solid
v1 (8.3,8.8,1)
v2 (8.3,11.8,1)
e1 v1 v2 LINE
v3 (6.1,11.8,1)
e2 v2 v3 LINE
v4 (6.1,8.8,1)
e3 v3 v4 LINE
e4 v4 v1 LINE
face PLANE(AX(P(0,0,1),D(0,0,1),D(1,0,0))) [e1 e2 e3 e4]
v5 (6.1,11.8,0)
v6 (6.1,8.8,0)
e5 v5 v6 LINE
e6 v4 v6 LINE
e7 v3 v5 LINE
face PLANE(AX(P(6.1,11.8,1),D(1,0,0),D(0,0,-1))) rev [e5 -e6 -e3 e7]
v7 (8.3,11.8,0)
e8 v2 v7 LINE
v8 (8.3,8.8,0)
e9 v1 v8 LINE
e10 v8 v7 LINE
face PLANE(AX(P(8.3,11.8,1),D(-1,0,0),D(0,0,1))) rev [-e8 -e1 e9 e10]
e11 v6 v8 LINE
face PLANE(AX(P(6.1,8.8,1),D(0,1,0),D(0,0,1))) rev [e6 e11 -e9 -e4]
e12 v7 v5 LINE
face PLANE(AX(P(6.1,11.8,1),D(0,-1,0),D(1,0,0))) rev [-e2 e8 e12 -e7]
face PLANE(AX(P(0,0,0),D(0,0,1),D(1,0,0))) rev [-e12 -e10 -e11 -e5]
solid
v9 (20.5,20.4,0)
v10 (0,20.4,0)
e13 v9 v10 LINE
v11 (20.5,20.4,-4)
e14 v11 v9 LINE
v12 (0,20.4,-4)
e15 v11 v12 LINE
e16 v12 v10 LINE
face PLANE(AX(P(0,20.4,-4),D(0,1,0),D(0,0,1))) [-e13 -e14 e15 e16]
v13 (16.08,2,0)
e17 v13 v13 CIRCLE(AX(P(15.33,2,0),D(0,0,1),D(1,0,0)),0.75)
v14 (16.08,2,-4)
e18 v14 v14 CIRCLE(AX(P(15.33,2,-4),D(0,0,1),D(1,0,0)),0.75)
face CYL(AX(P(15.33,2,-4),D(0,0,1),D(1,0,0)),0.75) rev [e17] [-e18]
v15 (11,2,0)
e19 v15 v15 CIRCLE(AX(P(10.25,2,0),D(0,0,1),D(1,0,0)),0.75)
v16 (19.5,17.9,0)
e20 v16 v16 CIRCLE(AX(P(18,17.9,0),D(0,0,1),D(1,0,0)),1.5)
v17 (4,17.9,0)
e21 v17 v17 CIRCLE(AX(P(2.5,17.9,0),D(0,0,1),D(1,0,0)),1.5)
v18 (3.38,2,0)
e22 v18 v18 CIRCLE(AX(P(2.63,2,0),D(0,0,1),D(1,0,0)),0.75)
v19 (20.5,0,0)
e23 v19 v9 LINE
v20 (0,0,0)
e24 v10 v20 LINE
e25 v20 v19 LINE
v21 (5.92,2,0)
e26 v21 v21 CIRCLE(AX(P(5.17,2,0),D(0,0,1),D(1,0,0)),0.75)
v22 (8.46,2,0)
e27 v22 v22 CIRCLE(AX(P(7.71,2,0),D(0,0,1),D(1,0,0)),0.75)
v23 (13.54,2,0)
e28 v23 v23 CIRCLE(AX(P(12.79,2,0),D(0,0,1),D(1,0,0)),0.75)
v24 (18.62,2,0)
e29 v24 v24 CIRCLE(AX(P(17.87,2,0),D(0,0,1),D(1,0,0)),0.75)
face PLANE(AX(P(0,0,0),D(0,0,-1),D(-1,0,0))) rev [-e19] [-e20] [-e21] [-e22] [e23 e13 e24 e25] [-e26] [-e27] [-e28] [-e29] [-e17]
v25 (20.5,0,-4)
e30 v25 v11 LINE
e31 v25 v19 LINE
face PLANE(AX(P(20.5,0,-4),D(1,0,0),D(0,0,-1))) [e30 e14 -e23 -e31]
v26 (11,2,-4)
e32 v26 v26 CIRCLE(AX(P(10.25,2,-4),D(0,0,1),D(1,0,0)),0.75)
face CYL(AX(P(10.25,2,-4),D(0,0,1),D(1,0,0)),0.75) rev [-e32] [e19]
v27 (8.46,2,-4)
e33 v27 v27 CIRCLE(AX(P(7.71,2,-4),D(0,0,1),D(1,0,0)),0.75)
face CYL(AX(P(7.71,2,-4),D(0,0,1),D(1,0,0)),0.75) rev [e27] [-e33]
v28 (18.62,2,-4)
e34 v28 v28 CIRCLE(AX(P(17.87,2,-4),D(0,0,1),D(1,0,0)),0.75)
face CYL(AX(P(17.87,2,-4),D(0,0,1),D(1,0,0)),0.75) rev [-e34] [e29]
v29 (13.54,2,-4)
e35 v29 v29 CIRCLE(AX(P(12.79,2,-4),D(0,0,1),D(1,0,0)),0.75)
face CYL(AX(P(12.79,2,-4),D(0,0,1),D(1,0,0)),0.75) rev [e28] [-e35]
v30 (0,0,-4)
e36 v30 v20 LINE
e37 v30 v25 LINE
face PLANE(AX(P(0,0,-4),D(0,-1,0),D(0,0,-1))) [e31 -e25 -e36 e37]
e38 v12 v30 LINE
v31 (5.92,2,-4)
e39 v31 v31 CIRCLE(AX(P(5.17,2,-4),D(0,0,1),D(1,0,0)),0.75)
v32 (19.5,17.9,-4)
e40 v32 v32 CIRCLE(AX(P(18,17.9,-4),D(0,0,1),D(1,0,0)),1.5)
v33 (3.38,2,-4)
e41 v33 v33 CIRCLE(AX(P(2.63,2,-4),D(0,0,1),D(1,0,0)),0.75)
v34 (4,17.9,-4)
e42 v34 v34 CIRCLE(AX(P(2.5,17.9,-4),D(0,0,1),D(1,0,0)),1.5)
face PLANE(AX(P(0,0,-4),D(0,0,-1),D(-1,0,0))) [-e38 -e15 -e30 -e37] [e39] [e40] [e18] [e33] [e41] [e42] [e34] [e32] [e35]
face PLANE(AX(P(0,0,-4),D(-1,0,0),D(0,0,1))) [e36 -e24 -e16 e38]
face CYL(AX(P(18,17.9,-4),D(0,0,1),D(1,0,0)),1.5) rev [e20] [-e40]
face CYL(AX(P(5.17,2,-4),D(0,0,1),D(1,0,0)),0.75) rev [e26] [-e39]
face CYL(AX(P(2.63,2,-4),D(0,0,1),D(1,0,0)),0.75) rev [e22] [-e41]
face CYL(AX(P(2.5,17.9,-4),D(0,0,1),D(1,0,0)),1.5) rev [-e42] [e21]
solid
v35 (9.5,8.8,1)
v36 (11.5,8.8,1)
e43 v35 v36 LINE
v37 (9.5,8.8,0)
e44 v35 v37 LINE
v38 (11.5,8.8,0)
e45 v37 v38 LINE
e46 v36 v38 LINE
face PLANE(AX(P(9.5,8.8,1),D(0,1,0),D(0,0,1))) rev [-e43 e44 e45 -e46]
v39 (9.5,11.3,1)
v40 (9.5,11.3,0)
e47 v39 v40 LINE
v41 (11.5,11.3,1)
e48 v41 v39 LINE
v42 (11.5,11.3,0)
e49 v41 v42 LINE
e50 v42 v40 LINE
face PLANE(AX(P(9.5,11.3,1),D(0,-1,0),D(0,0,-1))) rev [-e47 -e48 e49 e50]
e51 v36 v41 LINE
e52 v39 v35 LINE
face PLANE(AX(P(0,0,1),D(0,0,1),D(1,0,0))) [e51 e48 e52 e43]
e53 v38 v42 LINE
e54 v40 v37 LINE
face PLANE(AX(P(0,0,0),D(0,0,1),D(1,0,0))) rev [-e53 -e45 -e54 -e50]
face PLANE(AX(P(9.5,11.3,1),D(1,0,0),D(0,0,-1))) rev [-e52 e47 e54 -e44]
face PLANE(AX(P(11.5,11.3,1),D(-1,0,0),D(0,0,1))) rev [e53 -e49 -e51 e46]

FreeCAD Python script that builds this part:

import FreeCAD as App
import Part
import Sketcher

V = App.Vector

doc = App.newDocument("Part")
params = doc.addObject("Spreadsheet::Sheet", "Params")
for row, (alias, value) in enumerate([
    ("sketch1_width", "20.5 mm"),
    ("sketch1_height", "20.4 mm"),
    ("pad1_length", "4 mm"),
    ("sketch2_diameter", "3 mm"),
    ("sketch2_diameter2", "1.5 mm"),
    ("sketch3_height", "3 mm"),
    ("sketch3_width", "2.2 mm"),
    ("pad2_length", "1 mm"),
    ("sketch4_width", "2 mm"),
    ("sketch4_height", "2.5 mm"),
    ("pad3_length", "1 mm"),
], start=1):
    params.set(f"A{row}", alias)
    params.set(f"B{row}", "=" + value)
    params.setAlias(f"B{row}", alias)

body = doc.addObject("PartDesign::Body", "Body")

# Sketch on XY plane
sketch1 = body.newObject("Sketcher::SketchObject", "Sketch")
sketch1.AttachmentSupport = (doc.getObject("XY_Plane"), [""])
sketch1.MapMode = "FlatFace"
sketch1.addGeometry([
    Part.LineSegment(V(0, 20, 0), V(0, 0, 0)),
    Part.LineSegment(V(0, 0, 0), V(20, 0, 0)),
    Part.LineSegment(V(20, 0, 0), V(20, 20, 0)),
    Part.LineSegment(V(20, 20, 0), V(0, 20, 0)),
], False)
sketch1.addConstraint([
    Sketcher.Constraint("Coincident", 0, 2, 1, 1),
    Sketcher.Constraint("Coincident", 1, 2, 2, 1),
    Sketcher.Constraint("Coincident", 2, 2, 3, 1),
    Sketcher.Constraint("Coincident", 3, 2, 0, 1),
    Sketcher.Constraint("Vertical", 0),
    Sketcher.Constraint("Horizontal", 1),
    Sketcher.Constraint("Vertical", 2),
    Sketcher.Constraint("Horizontal", 3),
    Sketcher.Constraint("Coincident", 0, 2, -1, 1),
    Sketcher.Constraint("DistanceX", 1, 1, 1, 2, 20.5),
    Sketcher.Constraint("DistanceY", 0, 2, 0, 1, 20.4),
])
sketch1.setExpression("Constraints[9]", "Params.sketch1_width")
sketch1.setExpression("Constraints[10]", "Params.sketch1_height")
pad1 = body.newObject("PartDesign::Pad", "Pad")
pad1.Profile = sketch1
pad1.setExpression("Length", "Params.pad1_length")
pad1.Reversed = True

# Sketch on XY plane
sketch2 = body.newObject("Sketcher::SketchObject", "Sketch001")
sketch2.AttachmentSupport = (doc.getObject("XY_Plane"), [""])
sketch2.MapMode = "FlatFace"
sketch2.addGeometry([
    Part.Circle(V(2.5, 17.9, 0), V(0, 0, 1), 1.5),  # 0
    Part.Circle(V(18, 17.9, 0), V(0, 0, 1), 1.5),  # 1
    Part.Circle(V(2.6, 2, 0), V(0, 0, 1), 0.8),  # 2
    Part.Circle(V(5.2, 2, 0), V(0, 0, 1), 0.8),  # 3
    Part.Circle(V(7.7, 2, 0), V(0, 0, 1), 0.8),  # 4
    Part.Circle(V(10.2, 2, 0), V(0, 0, 1), 0.8),  # 5
    Part.Circle(V(12.8, 2, 0), V(0, 0, 1), 0.8),  # 6
    Part.Circle(V(15.3, 2, 0), V(0, 0, 1), 0.8),  # 7
    Part.Circle(V(17.9, 2, 0), V(0, 0, 1), 0.8),  # 8
], False)
sketch2.addConstraint([
    Sketcher.Constraint("Equal", 0, 1),
    Sketcher.Constraint("Equal", 2, 3),
    Sketcher.Constraint("Equal", 3, 4),
    Sketcher.Constraint("Equal", 4, 5),
    Sketcher.Constraint("Equal", 5, 6),
    Sketcher.Constraint("Equal", 6, 7),
    Sketcher.Constraint("Equal", 7, 8),
    Sketcher.Constraint("Horizontal", 0, 3, 1, 3),
    Sketcher.Constraint("Horizontal", 2, 3, 3, 3),
    Sketcher.Constraint("Horizontal", 3, 3, 4, 3),
    Sketcher.Constraint("Horizontal", 4, 3, 5, 3),
    Sketcher.Constraint("Horizontal", 5, 3, 6, 3),
    Sketcher.Constraint("Horizontal", 6, 3, 7, 3),
    Sketcher.Constraint("Horizontal", 7, 3, 8, 3),
    Sketcher.Constraint("Diameter", 0, 3.0),
    Sketcher.Constraint("Diameter", 2, 1.5),
    Sketcher.Constraint("DistanceX", -1, 1, 1, 3, 18.0),
    Sketcher.Constraint("DistanceY", -1, 1, 2, 3, 2.0),
    Sketcher.Constraint("DistanceX", -1, 1, 0, 3, 2.5),
    Sketcher.Constraint("DistanceY", -1, 1, 0, 3, 17.9),
    Sketcher.Constraint("DistanceX", 2, 3, 7, 3, 12.7),
    Sketcher.Constraint("DistanceX", 3, 3, 8, 3, 12.7),
    Sketcher.Constraint("DistanceX", -1, 1, 2, 3, 2.63),
    Sketcher.Constraint("DistanceX", -1, 1, 3, 3, 5.17),
    Sketcher.Constraint("DistanceX", -1, 1, 4, 3, 7.71),
    Sketcher.Constraint("DistanceX", -1, 1, 5, 3, 10.25),
    Sketcher.Constraint("DistanceX", -1, 1, 6, 3, 12.79),
])
sketch2.setExpression("Constraints[14]", "Params.sketch2_diameter")
sketch2.setExpression("Constraints[15]", "Params.sketch2_diameter2")
pocket1 = body.newObject("PartDesign::Pocket", "Pocket")
pocket1.Profile = sketch2
pocket1.Type = "ThroughAll"
body2 = doc.addObject("PartDesign::Body", "Body001")

# Sketch on XY plane
sketch3 = body2.newObject("Sketcher::SketchObject", "Sketch002")
sketch3.AttachmentSupport = (doc.getObject("XY_Plane001"), [""])
sketch3.MapMode = "FlatFace"
sketch3.addGeometry([
    Part.LineSegment(V(6.1, 11.8, 0), V(6.1, 8.8, 0)),
    Part.LineSegment(V(6.1, 8.8, 0), V(8.3, 8.8, 0)),
    Part.LineSegment(V(8.3, 8.8, 0), V(8.3, 11.8, 0)),
    Part.LineSegment(V(8.3, 11.8, 0), V(6.1, 11.8, 0)),
], False)
sketch3.addConstraint([
    Sketcher.Constraint("Coincident", 0, 2, 1, 1),
    Sketcher.Constraint("Coincident", 1, 2, 2, 1),
    Sketcher.Constraint("Coincident", 2, 2, 3, 1),
    Sketcher.Constraint("Coincident", 3, 2, 0, 1),
    Sketcher.Constraint("Vertical", 0),
    Sketcher.Constraint("Horizontal", 1),
    Sketcher.Constraint("Vertical", 2),
    Sketcher.Constraint("Horizontal", 3),
    Sketcher.Constraint("DistanceY", 0, 2, 0, 1, 3.0),
    Sketcher.Constraint("DistanceX", 1, 1, 1, 2, 2.2),
    Sketcher.Constraint("DistanceX", -1, 1, 0, 2, 6.1),
    Sketcher.Constraint("DistanceY", -1, 1, 0, 2, 8.8),
])
sketch3.setExpression("Constraints[8]", "Params.sketch3_height")
sketch3.setExpression("Constraints[9]", "Params.sketch3_width")
pad2 = body2.newObject("PartDesign::Pad", "Pad001")
pad2.Profile = sketch3
pad2.setExpression("Length", "Params.pad2_length")
body3 = doc.addObject("PartDesign::Body", "Body002")

# Sketch on XY plane
sketch4 = body3.newObject("Sketcher::SketchObject", "Sketch003")
sketch4.AttachmentSupport = (doc.getObject("XY_Plane002"), [""])
sketch4.MapMode = "FlatFace"
sketch4.addGeometry([
    Part.LineSegment(V(9.5, 11.3, 0), V(9.5, 8.8, 0)),
    Part.LineSegment(V(9.5, 8.8, 0), V(11.5, 8.8, 0)),
    Part.LineSegment(V(11.5, 8.8, 0), V(11.5, 11.3, 0)),
    Part.LineSegment(V(11.5, 11.3, 0), V(9.5, 11.3, 0)),
], False)
sketch4.addConstraint([
    Sketcher.Constraint("Coincident", 0, 2, 1, 1),
    Sketcher.Constraint("Coincident", 1, 2, 2, 1),
    Sketcher.Constraint("Coincident", 2, 2, 3, 1),
    Sketcher.Constraint("Coincident", 3, 2, 0, 1),
    Sketcher.Constraint("Vertical", 0),
    Sketcher.Constraint("Horizontal", 1),
    Sketcher.Constraint("Vertical", 2),
    Sketcher.Constraint("Horizontal", 3),
    Sketcher.Constraint("DistanceX", 1, 1, 1, 2, 2.0),
    Sketcher.Constraint("DistanceY", 0, 2, 0, 1, 2.5),
    Sketcher.Constraint("DistanceX", -1, 1, 0, 2, 9.5),
    Sketcher.Constraint("DistanceY", -1, 1, 0, 2, 8.8),
])
sketch4.setExpression("Constraints[8]", "Params.sketch4_width")
sketch4.setExpression("Constraints[9]", "Params.sketch4_height")
pad3 = body3.newObject("PartDesign::Pad", "Pad002")
pad3.Profile = sketch4
pad3.setExpression("Length", "Params.pad3_length")

doc.recompute()
